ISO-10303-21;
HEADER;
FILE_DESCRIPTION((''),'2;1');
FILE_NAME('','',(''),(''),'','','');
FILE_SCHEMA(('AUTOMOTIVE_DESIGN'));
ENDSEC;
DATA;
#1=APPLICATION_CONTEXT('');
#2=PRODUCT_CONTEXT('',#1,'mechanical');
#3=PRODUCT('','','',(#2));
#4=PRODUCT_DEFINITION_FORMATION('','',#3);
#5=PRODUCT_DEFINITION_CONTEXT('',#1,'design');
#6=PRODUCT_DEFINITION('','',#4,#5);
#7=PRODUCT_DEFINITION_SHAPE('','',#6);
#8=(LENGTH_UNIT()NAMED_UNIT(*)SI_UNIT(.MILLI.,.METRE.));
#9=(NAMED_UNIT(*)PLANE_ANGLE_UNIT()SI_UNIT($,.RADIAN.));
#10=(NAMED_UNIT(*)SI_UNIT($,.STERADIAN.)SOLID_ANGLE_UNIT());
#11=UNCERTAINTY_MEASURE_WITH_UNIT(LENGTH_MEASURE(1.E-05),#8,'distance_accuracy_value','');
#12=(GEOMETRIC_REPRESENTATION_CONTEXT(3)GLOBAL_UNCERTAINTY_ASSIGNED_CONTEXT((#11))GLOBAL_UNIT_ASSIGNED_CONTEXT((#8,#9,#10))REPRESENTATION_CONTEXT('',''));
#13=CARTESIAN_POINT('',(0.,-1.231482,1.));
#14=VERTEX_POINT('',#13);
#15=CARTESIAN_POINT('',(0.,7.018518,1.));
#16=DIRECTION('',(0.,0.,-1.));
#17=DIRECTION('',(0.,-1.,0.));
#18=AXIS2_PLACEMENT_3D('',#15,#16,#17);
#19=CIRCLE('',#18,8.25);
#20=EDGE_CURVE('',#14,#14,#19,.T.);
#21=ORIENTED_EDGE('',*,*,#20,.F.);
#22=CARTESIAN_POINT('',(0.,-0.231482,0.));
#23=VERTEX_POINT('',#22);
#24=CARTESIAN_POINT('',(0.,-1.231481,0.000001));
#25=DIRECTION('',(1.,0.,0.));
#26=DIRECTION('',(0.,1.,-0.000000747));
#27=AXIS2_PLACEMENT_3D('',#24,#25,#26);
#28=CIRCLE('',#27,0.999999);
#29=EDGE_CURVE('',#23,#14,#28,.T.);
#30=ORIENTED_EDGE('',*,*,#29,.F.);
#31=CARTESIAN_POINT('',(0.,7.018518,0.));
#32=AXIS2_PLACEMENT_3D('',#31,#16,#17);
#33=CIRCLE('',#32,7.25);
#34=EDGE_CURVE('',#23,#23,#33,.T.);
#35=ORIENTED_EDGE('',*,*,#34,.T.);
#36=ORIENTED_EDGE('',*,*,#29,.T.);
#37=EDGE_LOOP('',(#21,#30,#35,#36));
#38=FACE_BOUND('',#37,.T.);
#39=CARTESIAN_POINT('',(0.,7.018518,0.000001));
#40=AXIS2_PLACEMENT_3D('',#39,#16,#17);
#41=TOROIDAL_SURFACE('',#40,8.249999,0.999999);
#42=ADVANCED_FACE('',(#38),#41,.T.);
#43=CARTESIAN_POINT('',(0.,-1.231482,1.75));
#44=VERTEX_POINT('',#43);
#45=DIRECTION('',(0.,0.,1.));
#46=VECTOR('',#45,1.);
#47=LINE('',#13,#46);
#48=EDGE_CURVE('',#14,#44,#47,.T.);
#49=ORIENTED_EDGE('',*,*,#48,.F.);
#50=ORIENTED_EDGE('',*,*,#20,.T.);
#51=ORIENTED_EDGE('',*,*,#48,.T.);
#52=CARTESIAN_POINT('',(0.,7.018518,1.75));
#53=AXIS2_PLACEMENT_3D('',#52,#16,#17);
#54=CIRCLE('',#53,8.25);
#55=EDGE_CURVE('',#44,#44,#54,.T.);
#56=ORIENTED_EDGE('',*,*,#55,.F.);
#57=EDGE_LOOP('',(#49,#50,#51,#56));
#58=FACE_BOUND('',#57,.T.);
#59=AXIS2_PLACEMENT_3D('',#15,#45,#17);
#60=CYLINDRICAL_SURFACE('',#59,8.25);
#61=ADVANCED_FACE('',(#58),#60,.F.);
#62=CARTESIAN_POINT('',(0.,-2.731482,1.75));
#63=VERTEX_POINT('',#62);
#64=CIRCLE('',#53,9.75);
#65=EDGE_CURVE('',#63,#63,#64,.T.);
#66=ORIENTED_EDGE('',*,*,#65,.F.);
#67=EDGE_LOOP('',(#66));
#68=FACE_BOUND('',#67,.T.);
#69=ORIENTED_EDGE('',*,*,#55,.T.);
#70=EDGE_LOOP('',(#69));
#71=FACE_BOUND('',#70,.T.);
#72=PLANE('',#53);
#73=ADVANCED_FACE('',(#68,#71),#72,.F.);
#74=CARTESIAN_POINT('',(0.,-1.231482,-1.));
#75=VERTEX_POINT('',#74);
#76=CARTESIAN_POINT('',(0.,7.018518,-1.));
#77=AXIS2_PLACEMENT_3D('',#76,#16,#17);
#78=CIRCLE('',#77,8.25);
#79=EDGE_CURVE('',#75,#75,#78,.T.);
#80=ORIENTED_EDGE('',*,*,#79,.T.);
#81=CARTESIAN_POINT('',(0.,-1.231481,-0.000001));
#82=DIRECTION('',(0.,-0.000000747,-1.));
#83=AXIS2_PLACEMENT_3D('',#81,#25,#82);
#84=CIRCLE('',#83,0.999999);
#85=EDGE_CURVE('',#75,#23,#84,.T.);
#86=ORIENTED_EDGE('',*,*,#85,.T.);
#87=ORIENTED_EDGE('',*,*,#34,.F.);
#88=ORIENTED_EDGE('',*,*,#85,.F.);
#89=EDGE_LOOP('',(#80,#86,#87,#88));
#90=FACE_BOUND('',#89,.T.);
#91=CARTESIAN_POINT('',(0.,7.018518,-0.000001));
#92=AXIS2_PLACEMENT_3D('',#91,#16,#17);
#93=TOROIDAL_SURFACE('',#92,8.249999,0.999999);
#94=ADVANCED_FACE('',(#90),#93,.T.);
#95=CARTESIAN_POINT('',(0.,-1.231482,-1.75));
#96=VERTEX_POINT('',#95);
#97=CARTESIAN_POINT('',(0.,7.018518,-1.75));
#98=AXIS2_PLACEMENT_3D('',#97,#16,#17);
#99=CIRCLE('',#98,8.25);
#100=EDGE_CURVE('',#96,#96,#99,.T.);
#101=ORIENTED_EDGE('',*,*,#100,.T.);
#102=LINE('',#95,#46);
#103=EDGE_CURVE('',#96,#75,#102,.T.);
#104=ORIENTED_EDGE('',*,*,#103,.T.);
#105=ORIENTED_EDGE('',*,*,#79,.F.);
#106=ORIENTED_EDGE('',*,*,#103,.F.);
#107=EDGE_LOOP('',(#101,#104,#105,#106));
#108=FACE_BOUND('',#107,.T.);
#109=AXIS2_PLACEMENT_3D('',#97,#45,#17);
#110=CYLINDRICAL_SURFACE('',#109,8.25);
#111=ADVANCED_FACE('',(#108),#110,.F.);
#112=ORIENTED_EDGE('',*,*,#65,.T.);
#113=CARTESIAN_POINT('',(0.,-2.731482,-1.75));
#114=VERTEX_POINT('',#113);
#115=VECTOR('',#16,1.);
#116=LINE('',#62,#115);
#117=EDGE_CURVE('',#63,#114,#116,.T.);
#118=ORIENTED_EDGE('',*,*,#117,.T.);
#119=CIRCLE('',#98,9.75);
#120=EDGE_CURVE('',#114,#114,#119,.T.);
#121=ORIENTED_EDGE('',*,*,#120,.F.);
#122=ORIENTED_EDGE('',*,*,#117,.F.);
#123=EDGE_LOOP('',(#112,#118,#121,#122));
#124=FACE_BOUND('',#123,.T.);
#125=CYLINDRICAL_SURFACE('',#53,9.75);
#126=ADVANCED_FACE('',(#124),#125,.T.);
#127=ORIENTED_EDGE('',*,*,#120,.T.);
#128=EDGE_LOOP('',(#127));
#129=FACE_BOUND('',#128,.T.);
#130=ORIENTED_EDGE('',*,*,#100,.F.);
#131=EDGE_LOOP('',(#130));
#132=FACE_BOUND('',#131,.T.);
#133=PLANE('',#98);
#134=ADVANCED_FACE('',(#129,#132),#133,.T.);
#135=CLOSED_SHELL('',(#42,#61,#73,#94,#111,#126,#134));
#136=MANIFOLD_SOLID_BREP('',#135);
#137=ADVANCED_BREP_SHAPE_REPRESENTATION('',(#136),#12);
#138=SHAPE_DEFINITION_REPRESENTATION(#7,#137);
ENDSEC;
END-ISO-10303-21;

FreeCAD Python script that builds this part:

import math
import FreeCAD as App
import Part
import Sketcher
from FreeCAD import Vector
Q = App.Units.Quantity

doc = App.newDocument("Part")
params = doc.addObject("Spreadsheet::Sheet", "Params")
for row, (alias, value) in enumerate([
    ("sketch1_radius", "0.999999 mm"),
    ("sketch1_width", "1.5 mm"),
    ("sketch1_height", "3.5 mm"),
    ("revolution_angle", "360 deg"),
], start=1):
    params.set(f"A{row}", alias)
    params.set(f"B{row}", "=" + value)
    params.setAlias(f"B{row}", alias)

body = doc.addObject("PartDesign::Body", "Body")

sketch1 = body.newObject("Sketcher::SketchObject", "Sketch")
sketch1.AttachmentSupport = (doc.getObject("YZ_Plane"), [""])
sketch1.MapMode = "FlatFace"
sketch1.addGeometry([
    Part.LineSegment(Vector(-2.7, 1.8, 0), Vector(-2.7, -1.8, 0)),
    Part.LineSegment(Vector(-2.7, -1.8, 0), Vector(-1.2, -1.8, 0)),
    Part.LineSegment(Vector(-1.2, -1.8, 0), Vector(-1.2, -1, 0)),
    Part.ArcOfCircle(Part.Circle(Vector(-1.2, 0, 0), Vector(0, 0, 1), 1), math.radians(-90), math.radians(0)),
    Part.ArcOfCircle(Part.Circle(Vector(-1.2, 0, 0), Vector(0, 0, 1), 1), math.radians(0), math.radians(90)),
    Part.LineSegment(Vector(-1.2, 1, 0), Vector(-1.2, 1.8, 0)),
    Part.LineSegment(Vector(-1.2, 1.8, 0), Vector(-2.7, 1.8, 0)),
], False)
sketch1.addGeometry(Part.LineSegment(Vector(7, 1.8, 0), Vector(7, -1.8, 0)), True)
sketch1.addConstraint([
    Sketcher.Constraint("Coincident", 0, 2, 1, 1),
    Sketcher.Constraint("Coincident", 1, 2, 2, 1),
    Sketcher.Constraint("Coincident", 2, 2, 3, 1),
    Sketcher.Constraint("Tangent", 3, 2, 4, 1),
    Sketcher.Constraint("Coincident", 4, 2, 5, 1),
    Sketcher.Constraint("Coincident", 5, 2, 6, 1),
    Sketcher.Constraint("Coincident", 6, 2, 0, 1),
    Sketcher.Constraint("Vertical", 0),
    Sketcher.Constraint("Horizontal", 1),
    Sketcher.Constraint("Vertical", 2),
    Sketcher.Constraint("Vertical", 5),
    Sketcher.Constraint("Horizontal", 6),
    Sketcher.Constraint("Vertical", 7),
    Sketcher.Constraint("Equal", 3, 4),
    Sketcher.Constraint("Symmetric", 2, 2, 4, 2, -1),
    Sketcher.Constraint("PointOnObject", 3, 2, -1),
    Sketcher.Constraint("Horizontal", 6, 2, 7, 1),
    Sketcher.Constraint("Horizontal", 1, 2, 7, 2),
    Sketcher.Constraint("Vertical", 4, 3, 1, 2),
    Sketcher.Constraint("Equal", 2, 5),
    Sketcher.Constraint("Radius", 3, Q("0.999999 mm")),
    Sketcher.Constraint("DistanceX", 1, 1, 1, 2, Q("1.5 mm")),
    Sketcher.Constraint("DistanceY", 0, 2, 0, 1, Q("3.5 mm")),
    Sketcher.Constraint("DistanceX", 3, 2, 7, 1, Q("7.25 mm")),
    Sketcher.Constraint("DistanceX", 3, 3, -1, 1, Q("1.231481 mm")),
])
sketch1.setExpression("Constraints[20]", "Params.sketch1_radius")
sketch1.setExpression("Constraints[21]", "Params.sketch1_width")
sketch1.setExpression("Constraints[22]", "Params.sketch1_height")
revolution = body.newObject("PartDesign::Revolution", "Revolution")
revolution.Profile = sketch1
revolution.ReferenceAxis = (sketch1, ["Axis0"])
revolution.setExpression("Angle", "Params.revolution_angle")

doc.recompute()
